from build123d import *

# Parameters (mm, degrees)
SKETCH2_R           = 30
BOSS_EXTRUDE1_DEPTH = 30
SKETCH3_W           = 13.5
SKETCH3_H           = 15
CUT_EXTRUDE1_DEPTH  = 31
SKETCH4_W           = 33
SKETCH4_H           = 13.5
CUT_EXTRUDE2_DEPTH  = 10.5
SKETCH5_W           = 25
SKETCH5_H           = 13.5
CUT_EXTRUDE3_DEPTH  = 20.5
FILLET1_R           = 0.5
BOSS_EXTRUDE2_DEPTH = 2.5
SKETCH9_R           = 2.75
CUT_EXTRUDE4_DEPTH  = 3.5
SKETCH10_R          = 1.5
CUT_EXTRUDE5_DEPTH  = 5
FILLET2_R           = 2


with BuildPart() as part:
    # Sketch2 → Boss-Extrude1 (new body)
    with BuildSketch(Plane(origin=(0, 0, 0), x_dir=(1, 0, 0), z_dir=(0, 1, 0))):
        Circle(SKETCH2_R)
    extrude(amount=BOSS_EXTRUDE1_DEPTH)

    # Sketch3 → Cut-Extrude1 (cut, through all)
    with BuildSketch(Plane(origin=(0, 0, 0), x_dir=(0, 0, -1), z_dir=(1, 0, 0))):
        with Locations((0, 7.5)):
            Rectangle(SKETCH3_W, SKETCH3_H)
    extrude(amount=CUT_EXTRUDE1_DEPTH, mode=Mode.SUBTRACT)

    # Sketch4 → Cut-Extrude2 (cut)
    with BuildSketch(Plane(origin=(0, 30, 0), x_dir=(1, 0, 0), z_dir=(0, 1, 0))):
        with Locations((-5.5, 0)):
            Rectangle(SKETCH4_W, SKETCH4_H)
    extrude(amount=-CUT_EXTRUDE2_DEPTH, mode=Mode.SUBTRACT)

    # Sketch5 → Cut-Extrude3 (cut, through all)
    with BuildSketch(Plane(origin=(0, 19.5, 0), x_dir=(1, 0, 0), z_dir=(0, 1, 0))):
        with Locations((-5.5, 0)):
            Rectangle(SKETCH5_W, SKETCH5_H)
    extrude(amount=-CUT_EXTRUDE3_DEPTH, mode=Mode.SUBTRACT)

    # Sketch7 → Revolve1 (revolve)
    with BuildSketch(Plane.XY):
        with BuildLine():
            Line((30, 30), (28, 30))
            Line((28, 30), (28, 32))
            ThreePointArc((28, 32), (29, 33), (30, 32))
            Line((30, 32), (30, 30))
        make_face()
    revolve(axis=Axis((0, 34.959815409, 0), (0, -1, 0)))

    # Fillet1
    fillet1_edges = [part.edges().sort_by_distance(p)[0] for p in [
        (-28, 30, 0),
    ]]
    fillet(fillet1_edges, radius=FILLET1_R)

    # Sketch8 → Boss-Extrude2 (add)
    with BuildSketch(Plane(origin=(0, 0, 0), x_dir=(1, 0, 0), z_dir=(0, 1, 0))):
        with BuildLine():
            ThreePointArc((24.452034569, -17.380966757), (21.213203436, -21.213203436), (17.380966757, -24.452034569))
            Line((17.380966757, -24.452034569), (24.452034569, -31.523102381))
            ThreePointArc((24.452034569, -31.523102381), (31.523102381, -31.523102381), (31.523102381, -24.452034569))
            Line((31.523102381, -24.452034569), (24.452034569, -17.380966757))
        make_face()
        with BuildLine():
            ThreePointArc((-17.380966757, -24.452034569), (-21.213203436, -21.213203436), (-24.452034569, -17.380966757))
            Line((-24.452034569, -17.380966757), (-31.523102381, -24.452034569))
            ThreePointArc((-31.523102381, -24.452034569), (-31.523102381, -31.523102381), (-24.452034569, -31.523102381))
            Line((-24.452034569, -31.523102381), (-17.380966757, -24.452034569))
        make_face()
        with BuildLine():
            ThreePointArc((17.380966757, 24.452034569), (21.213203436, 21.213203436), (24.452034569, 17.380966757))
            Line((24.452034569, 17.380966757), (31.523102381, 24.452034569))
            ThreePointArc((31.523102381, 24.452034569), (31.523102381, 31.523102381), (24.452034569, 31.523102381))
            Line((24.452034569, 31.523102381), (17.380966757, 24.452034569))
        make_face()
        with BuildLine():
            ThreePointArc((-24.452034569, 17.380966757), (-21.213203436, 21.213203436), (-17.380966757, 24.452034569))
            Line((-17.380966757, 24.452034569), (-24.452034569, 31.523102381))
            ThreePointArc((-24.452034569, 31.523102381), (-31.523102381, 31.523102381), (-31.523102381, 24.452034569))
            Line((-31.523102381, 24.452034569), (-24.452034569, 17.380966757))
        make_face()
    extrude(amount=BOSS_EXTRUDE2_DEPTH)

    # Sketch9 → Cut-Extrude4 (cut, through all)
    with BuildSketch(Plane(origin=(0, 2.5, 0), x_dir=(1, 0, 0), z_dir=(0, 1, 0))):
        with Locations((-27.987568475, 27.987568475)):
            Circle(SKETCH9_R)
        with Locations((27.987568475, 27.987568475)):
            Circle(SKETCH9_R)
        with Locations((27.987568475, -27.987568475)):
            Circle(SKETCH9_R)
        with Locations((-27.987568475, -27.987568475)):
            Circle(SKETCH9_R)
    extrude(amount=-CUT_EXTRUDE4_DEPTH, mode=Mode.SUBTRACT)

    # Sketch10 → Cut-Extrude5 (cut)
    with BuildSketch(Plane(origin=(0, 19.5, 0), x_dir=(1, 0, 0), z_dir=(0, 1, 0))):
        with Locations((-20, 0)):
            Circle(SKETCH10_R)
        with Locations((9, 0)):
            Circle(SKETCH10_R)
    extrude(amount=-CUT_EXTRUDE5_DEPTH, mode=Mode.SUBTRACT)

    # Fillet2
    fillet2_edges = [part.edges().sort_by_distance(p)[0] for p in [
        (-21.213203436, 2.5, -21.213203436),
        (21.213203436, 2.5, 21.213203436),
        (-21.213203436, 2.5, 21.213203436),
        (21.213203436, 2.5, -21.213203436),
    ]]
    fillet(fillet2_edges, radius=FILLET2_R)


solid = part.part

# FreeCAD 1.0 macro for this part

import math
import FreeCAD as App
import Part
import Sketcher


def edges_at(feature, points):
    """Names of the edges that pass closest to the given points."""
    edges = feature.Shape.Edges
    near = lambda p: min(range(len(edges)), key=lambda i: edges[i].distToShape(Part.Vertex(*p))[0])
    return sorted({f"Edge{near(p) + 1}" for p in points})

doc = App.newDocument("Part")
params = doc.addObject("Spreadsheet::Sheet", "Params")
for row, (alias, value) in enumerate([
    ("sketch1_diameter", "60 mm"),
    ("pad1_length", "30 mm"),
    ("sketch2_width", "15 mm"),
    ("sketch2_height", "13.5 mm"),
    ("sketch3_width", "33 mm"),
    ("sketch3_height", "13.5 mm"),
    ("pocket2_length", "10.5 mm"),
    ("sketch4_width", "25 mm"),
    ("sketch4_height", "13.5 mm"),
    ("sketch5_radius", "1 mm"),
    ("revolution_angle", "360 deg"),
    ("fillet_radius", "0.5 mm"),
    ("sketch6_radius", "30 mm"),
    ("sketch6_radius2", "5 mm"),
    ("pad2_length", "2.5 mm"),
    ("sketch7_diameter", "5.5 mm"),
    ("sketch8_diameter", "3 mm"),
    ("pocket5_length", "5 mm"),
    ("fillet2_radius", "2 mm"),
], start=1):
    params.set(f"A{row}", alias)
    params.set(f"B{row}", "=" + value)
    params.setAlias(f"B{row}", alias)

body = doc.addObject("PartDesign::Body", "Body")

sketch1 = body.newObject("Sketcher::SketchObject", "Sketch")
sketch1.AttachmentSupport = (doc.getObject("XZ_Plane"), [""])
sketch1.MapMode = "FlatFace"
sketch1.addGeometry(Part.Circle(App.Vector(0, 0, 0), App.Vector(0, 0, 1), 30), False)
sketch1.addConstraint(Sketcher.Constraint("Coincident", 0, 3, -1, 1))
sketch1.addConstraint(Sketcher.Constraint("Diameter", 0, 60.0))
sketch1.setExpression("Constraints[1]", "Params.sketch1_diameter")
pad1 = body.newObject("PartDesign::Pad", "Pad")
pad1.Profile = sketch1
pad1.setExpression("Length", "Params.pad1_length")
pad1.Reversed = True

sketch2 = body.newObject("Sketcher::SketchObject", "Sketch001")
sketch2.AttachmentSupport = (doc.getObject("YZ_Plane"), [""])
sketch2.MapMode = "FlatFace"
sketch2.addGeometry(Part.LineSegment(App.Vector(15, 6.75, 0), App.Vector(0, 6.75, 0)), False)
sketch2.addGeometry(Part.LineSegment(App.Vector(0, 6.75, 0), App.Vector(0, -6.75, 0)), False)
sketch2.addGeometry(Part.LineSegment(App.Vector(0, -6.75, 0), App.Vector(15, -6.75, 0)), False)
sketch2.addGeometry(Part.LineSegment(App.Vector(15, -6.75, 0), App.Vector(15, 6.75, 0)), False)
sketch2.addConstraint(Sketcher.Constraint("Coincident", 0, 2, 1, 1))
sketch2.addConstraint(Sketcher.Constraint("Coincident", 1, 2, 2, 1))
sketch2.addConstraint(Sketcher.Constraint("Coincident", 2, 2, 3, 1))
sketch2.addConstraint(Sketcher.Constraint("Coincident", 3, 2, 0, 1))
sketch2.addConstraint(Sketcher.Constraint("Horizontal", 0))
sketch2.addConstraint(Sketcher.Constraint("Vertical", 1))
sketch2.addConstraint(Sketcher.Constraint("Horizontal", 2))
sketch2.addConstraint(Sketcher.Constraint("Vertical", 3))
sketch2.addConstraint(Sketcher.Constraint("Symmetric", 0, 2, 1, 2, -1, 1))
sketch2.addConstraint(Sketcher.Constraint("DistanceX", 0, 2, 0, 1, 15.0))
sketch2.addConstraint(Sketcher.Constraint("DistanceY", 1, 2, 1, 1, 13.5))
sketch2.setExpression("Constraints[9]", "Params.sketch2_width")
sketch2.setExpression("Constraints[10]", "Params.sketch2_height")
pocket1 = body.newObject("PartDesign::Pocket", "Pocket")
pocket1.Profile = sketch2
pocket1.Type = "ThroughAll"
pocket1.Reversed = True

sketch3 = body.newObject("Sketcher::SketchObject", "Sketch002")
sketch3.AttachmentSupport = (doc.getObject("XZ_Plane"), [""])
sketch3.MapMode = "FlatFace"
sketch3.AttachmentOffset = App.Placement(App.Vector(0, 0, -30), App.Rotation())
sketch3.addGeometry(Part.LineSegment(App.Vector(-22, -6.75, 0), App.Vector(-22, 6.75, 0)), False)
sketch3.addGeometry(Part.LineSegment(App.Vector(-22, 6.75, 0), App.Vector(11, 6.75, 0)), False)
sketch3.addGeometry(Part.LineSegment(App.Vector(11, 6.75, 0), App.Vector(11, -6.75, 0)), False)
sketch3.addGeometry(Part.LineSegment(App.Vector(11, -6.75, 0), App.Vector(-22, -6.75, 0)), False)
sketch3.addConstraint(Sketcher.Constraint("Coincident", 0, 2, 1, 1))
sketch3.addConstraint(Sketcher.Constraint("Coincident", 1, 2, 2, 1))
sketch3.addConstraint(Sketcher.Constraint("Coincident", 2, 2, 3, 1))
sketch3.addConstraint(Sketcher.Constraint("Coincident", 3, 2, 0, 1))
sketch3.addConstraint(Sketcher.Constraint("Vertical", 0))
sketch3.addConstraint(Sketcher.Constraint("Horizontal", 1))
sketch3.addConstraint(Sketcher.Constraint("Vertical", 2))
sketch3.addConstraint(Sketcher.Constraint("Horizontal", 3))
sketch3.addConstraint(Sketcher.Constraint("DistanceX", 1, 1, 1, 2, 33.0))
sketch3.addConstraint(Sketcher.Constraint("DistanceY", 0, 1, 0, 2, 13.5))
sketch3.addConstraint(Sketcher.Constraint("DistanceX", 0, 2, -1, 1, 22.0))
sketch3.addConstraint(Sketcher.Constraint("DistanceY", -1, 1, 0, 2, 6.75))
sketch3.setExpression("Constraints[8]", "Params.sketch3_width")
sketch3.setExpression("Constraints[9]", "Params.sketch3_height")
pocket2 = body.newObject("PartDesign::Pocket", "Pocket001")
pocket2.Profile = sketch3
pocket2.setExpression("Length", "Params.pocket2_length")
pocket2.Reversed = True

sketch4 = body.newObject("Sketcher::SketchObject", "Sketch003")
sketch4.AttachmentSupport = (doc.getObject("XZ_Plane"), [""])
sketch4.MapMode = "FlatFace"
sketch4.AttachmentOffset = App.Placement(App.Vector(0, 0, -19.5), App.Rotation())
sketch4.addGeometry(Part.LineSegment(App.Vector(-18, -6.75, 0), App.Vector(-18, 6.75, 0)), False)
sketch4.addGeometry(Part.LineSegment(App.Vector(-18, 6.75, 0), App.Vector(7, 6.75, 0)), False)
sketch4.addGeometry(Part.LineSegment(App.Vector(7, 6.75, 0), App.Vector(7, -6.75, 0)), False)
sketch4.addGeometry(Part.LineSegment(App.Vector(7, -6.75, 0), App.Vector(-18, -6.75, 0)), False)
sketch4.addConstraint(Sketcher.Constraint("Coincident", 0, 2, 1, 1))
sketch4.addConstraint(Sketcher.Constraint("Coincident", 1, 2, 2, 1))
sketch4.addConstraint(Sketcher.Constraint("Coincident", 2, 2, 3, 1))
sketch4.addConstraint(Sketcher.Constraint("Coincident", 3, 2, 0, 1))
sketch4.addConstraint(Sketcher.Constraint("Vertical", 0))
sketch4.addConstraint(Sketcher.Constraint("Horizontal", 1))
sketch4.addConstraint(Sketcher.Constraint("Vertical", 2))
sketch4.addConstraint(Sketcher.Constraint("Horizontal", 3))
sketch4.addConstraint(Sketcher.Constraint("DistanceX", 1, 1, 1, 2, 25.0))
sketch4.addConstraint(Sketcher.Constraint("DistanceY", 0, 1, 0, 2, 13.5))
sketch4.addConstraint(Sketcher.Constraint("DistanceX", 0, 2, -1, 1, 18.0))
sketch4.addConstraint(Sketcher.Constraint("DistanceY", -1, 1, 0, 2, 6.75))
sketch4.setExpression("Constraints[8]", "Params.sketch4_width")
sketch4.setExpression("Constraints[9]", "Params.sketch4_height")
pocket3 = body.newObject("PartDesign::Pocket", "Pocket002")
pocket3.Profile = sketch4
pocket3.Type = "ThroughAll"
pocket3.Reversed = True

sketch5 = body.newObject("Sketcher::SketchObject", "Sketch004")
sketch5.AttachmentSupport = (doc.getObject("XY_Plane"), [""])
sketch5.MapMode = "FlatFace"
sketch5.addGeometry(Part.LineSegment(App.Vector(28, 30, 0), App.Vector(30, 30, 0)), False)
sketch5.addGeometry(Part.LineSegment(App.Vector(30, 30, 0), App.Vector(30, 32, 0)), False)
sketch5.addGeometry(Part.ArcOfCircle(Part.Circle(App.Vector(29, 32, 0), App.Vector(0, 0, 1), 1), math.radians(0), math.radians(180)), False)
sketch5.addGeometry(Part.LineSegment(App.Vector(28, 32, 0), App.Vector(28, 30, 0)), False)
sketch5.addConstraint(Sketcher.Constraint("Coincident", 0, 2, 1, 1))
sketch5.addConstraint(Sketcher.Constraint("Tangent", 1, 2, 2, 1))
sketch5.addConstraint(Sketcher.Constraint("Tangent", 2, 2, 3, 1))
sketch5.addConstraint(Sketcher.Constraint("Coincident", 3, 2, 0, 1))
sketch5.addConstraint(Sketcher.Constraint("Horizontal", 0))
sketch5.addConstraint(Sketcher.Constraint("Vertical", 1))
sketch5.addConstraint(Sketcher.Constraint("Vertical", 3))
sketch5.addConstraint(Sketcher.Constraint("Equal", 0, 1))
sketch5.addConstraint(Sketcher.Constraint("Radius", 2, 1.0))
sketch5.addConstraint(Sketcher.Constraint("DistanceX", -1, 1, 2, 3, 29.0))
sketch5.addConstraint(Sketcher.Constraint("DistanceY", -1, 1, 2, 3, 32.0))
sketch5.setExpression("Constraints[8]", "Params.sketch5_radius")
revolution = body.newObject("PartDesign::Revolution", "Revolution")
revolution.Profile = sketch5
revolution.ReferenceAxis = (sketch5, ["V_Axis"])
revolution.setExpression("Angle", "Params.revolution_angle")
doc.recompute()

fillet = body.newObject("PartDesign::Fillet", "Fillet")
fillet.Base = (revolution, edges_at(revolution, [(-28, 30, 0)]))
fillet.setExpression("Radius", "Params.fillet_radius")

sketch6 = body.newObject("Sketcher::SketchObject", "Sketch005")
sketch6.AttachmentSupport = (doc.getObject("XZ_Plane"), [""])
sketch6.MapMode = "FlatFace"
sketch6.addGeometry(Part.ArcOfCircle(Part.Circle(App.Vector(0, 0, 0), App.Vector(0, 0, 1), 30), math.radians(35.405932), math.radians(54.594068)), False)
sketch6.addGeometry(Part.LineSegment(App.Vector(17.380967, 24.452035, 0), App.Vector(24.452035, 31.523102, 0)), False)
sketch6.addGeometry(Part.ArcOfCircle(Part.Circle(App.Vector(27.987568, 27.987568, 0), App.Vector(0, 0, 1), 5), math.radians(-45), math.radians(135)), False)
sketch6.addGeometry(Part.LineSegment(App.Vector(31.523102, 24.452035, 0), App.Vector(24.452035, 17.380967, 0)), False)
sketch6.addGeometry(Part.ArcOfCircle(Part.Circle(App.Vector(0, 0, 0), App.Vector(0, 0, 1), 30), math.radians(125.405932), math.radians(144.594068)), False)
sketch6.addGeometry(Part.LineSegment(App.Vector(-24.452035, 17.380967, 0), App.Vector(-31.523102, 24.452035, 0)), False)
sketch6.addGeometry(Part.ArcOfCircle(Part.Circle(App.Vector(-27.987568, 27.987568, 0), App.Vector(0, 0, 1), 5), math.radians(45), math.radians(225)), False)
sketch6.addGeometry(Part.LineSegment(App.Vector(-24.452035, 31.523102, 0), App.Vector(-17.380967, 24.452035, 0)), False)
sketch6.addGeometry(Part.ArcOfCircle(Part.Circle(App.Vector(0, 0, 0), App.Vector(0, 0, 1), 30), math.radians(-54.594068), math.radians(-35.405932)), False)
sketch6.addGeometry(Part.LineSegment(App.Vector(24.452035, -17.380967, 0), App.Vector(31.523102, -24.452035, 0)), False)
sketch6.addGeometry(Part.ArcOfCircle(Part.Circle(App.Vector(27.987568, -27.987568, 0), App.Vector(0, 0, 1), 5), math.radians(-135), math.radians(45)), False)
sketch6.addGeometry(Part.LineSegment(App.Vector(24.452035, -31.523102, 0), App.Vector(17.380967, -24.452035, 0)), False)
sketch6.addGeometry(Part.ArcOfCircle(Part.Circle(App.Vector(0, 0, 0), App.Vector(0, 0, 1), 30), math.radians(-144.594068), math.radians(-125.405932)), False)
sketch6.addGeometry(Part.LineSegment(App.Vector(-17.380967, -24.452035, 0), App.Vector(-24.452035, -31.523102, 0)), False)
sketch6.addGeometry(Part.ArcOfCircle(Part.Circle(App.Vector(-27.987568, -27.987568, 0), App.Vector(0, 0, 1), 5), math.radians(135), math.radians(315)), False)
sketch6.addGeometry(Part.LineSegment(App.Vector(-31.523102, -24.452035, 0), App.Vector(-24.452035, -17.380967, 0)), False)
sketch6.addConstraint(Sketcher.Constraint("Coincident", 0, 2, 1, 1))
sketch6.addConstraint(Sketcher.Constraint("Tangent", 1, 2, 2, 2))
sketch6.addConstraint(Sketcher.Constraint("Tangent", 2, 1, 3, 1))
sketch6.addConstraint(Sketcher.Constraint("Coincident", 3, 2, 0, 1))
sketch6.addConstraint(Sketcher.Constraint("Coincident", 4, 2, 5, 1))
sketch6.addConstraint(Sketcher.Constraint("Tangent", 5, 2, 6, 2))
sketch6.addConstraint(Sketcher.Constraint("Tangent", 6, 1, 7, 1))
sketch6.addConstraint(Sketcher.Constraint("Coincident", 7, 2, 4, 1))
sketch6.addConstraint(Sketcher.Constraint("Coincident", 8, 2, 9, 1))
sketch6.addConstraint(Sketcher.Constraint("Tangent", 9, 2, 10, 2))
sketch6.addConstraint(Sketcher.Constraint("Tangent", 10, 1, 11, 1))
sketch6.addConstraint(Sketcher.Constraint("Coincident", 11, 2, 8, 1))
sketch6.addConstraint(Sketcher.Constraint("Coincident", 12, 2, 13, 1))
sketch6.addConstraint(Sketcher.Constraint("Tangent", 13, 2, 14, 2))
sketch6.addConstraint(Sketcher.Constraint("Tangent", 14, 1, 15, 1))
sketch6.addConstraint(Sketcher.Constraint("Coincident", 15, 2, 12, 1))
sketch6.addConstraint(Sketcher.Constraint("Coincident", 0, 3, -1, 1))
sketch6.addConstraint(Sketcher.Constraint("Coincident", 4, 3, -1, 1))
sketch6.addConstraint(Sketcher.Constraint("Coincident", 8, 3, -1, 1))
sketch6.addConstraint(Sketcher.Constraint("Coincident", 12, 3, -1, 1))
sketch6.addConstraint(Sketcher.Constraint("Equal", 0, 4))
sketch6.addConstraint(Sketcher.Constraint("Equal", 2, 6))
sketch6.addConstraint(Sketcher.Constraint("Equal", 4, 8))
sketch6.addConstraint(Sketcher.Constraint("Equal", 6, 10))
sketch6.addConstraint(Sketcher.Constraint("Equal", 8, 12))
sketch6.addConstraint(Sketcher.Constraint("Equal", 10, 14))
sketch6.addConstraint(Sketcher.Constraint("Symmetric", 6, 3, 10, 3, -1, 1))
sketch6.addConstraint(Sketcher.Constraint("Symmetric", 2, 3, 14, 3, -1, 1))
sketch6.addConstraint(Sketcher.Constraint("Symmetric", 2, 3, 6, 3, -2))
sketch6.addConstraint(Sketcher.Constraint("Parallel", 1, 3))
sketch6.addConstraint(Sketcher.Constraint("Perpendicular", 3, 5))
sketch6.addConstraint(Sketcher.Constraint("Parallel", 5, 7))
sketch6.addConstraint(Sketcher.Constraint("Parallel", 7, 9))
sketch6.addConstraint(Sketcher.Constraint("Parallel", 9, 11))
sketch6.addConstraint(Sketcher.Constraint("Perpendicular", 11, 13))
sketch6.addConstraint(Sketcher.Constraint("Parallel", 13, 15))
sketch6.addConstraint(Sketcher.Constraint("Horizontal", 0, 2, 2, 1))
sketch6.addConstraint(Sketcher.Constraint("Horizontal", 3, 2, 4, 2))
sketch6.addConstraint(Sketcher.Constraint("Vertical", 1, 2, 3, 2))
sketch6.addConstraint(Sketcher.Constraint("Radius", 0, 30.0))
sketch6.addConstraint(Sketcher.Constraint("Radius", 2, 5.0))
sketch6.setExpression("Constraints[39]", "Params.sketch6_radius")
sketch6.setExpression("Constraints[40]", "Params.sketch6_radius2")
pad2 = body.newObject("PartDesign::Pad", "Pad001")
pad2.Profile = sketch6
pad2.setExpression("Length", "Params.pad2_length")
pad2.Reversed = True

sketch7 = body.newObject("Sketcher::SketchObject", "Sketch006")
sketch7.AttachmentSupport = (doc.getObject("XZ_Plane"), [""])
sketch7.MapMode = "FlatFace"
sketch7.AttachmentOffset = App.Placement(App.Vector(0, 0, -2.5), App.Rotation())
sketch7.addGeometry(Part.Circle(App.Vector(-27.987568, -27.987568, 0), App.Vector(0, 0, 1), 2.75), False)
sketch7.addGeometry(Part.Circle(App.Vector(27.987568, -27.987568, 0), App.Vector(0, 0, 1), 2.75), False)
sketch7.addGeometry(Part.Circle(App.Vector(27.987568, 27.987568, 0), App.Vector(0, 0, 1), 2.75), False)
sketch7.addGeometry(Part.Circle(App.Vector(-27.987568, 27.987568, 0), App.Vector(0, 0, 1), 2.75), False)
sketch7.addConstraint(Sketcher.Constraint("Equal", 0, 1))
sketch7.addConstraint(Sketcher.Constraint("Equal", 1, 2))
sketch7.addConstraint(Sketcher.Constraint("Equal", 2, 3))
sketch7.addConstraint(Sketcher.Constraint("Symmetric", 0, 3, 2, 3, -1, 1))
sketch7.addConstraint(Sketcher.Constraint("Symmetric", 1, 3, 3, 3, -1, 1))
sketch7.addConstraint(Sketcher.Constraint("Symmetric", 0, 3, 1, 3, -2))
sketch7.addConstraint(Sketcher.Constraint("Diameter", 0, 5.5))
sketch7.addConstraint(Sketcher.Constraint("DistanceX", 0, 3, -1, 1, 27.987568))
sketch7.addConstraint(Sketcher.Constraint("DistanceY", 0, 3, -1, 1, 27.987568))
sketch7.setExpression("Constraints[6]", "Params.sketch7_diameter")
pocket4 = body.newObject("PartDesign::Pocket", "Pocket003")
pocket4.Profile = sketch7
pocket4.Type = "ThroughAll"
pocket4.Reversed = True

sketch8 = body.newObject("Sketcher::SketchObject", "Sketch007")
sketch8.AttachmentSupport = (doc.getObject("XZ_Plane"), [""])
sketch8.MapMode = "FlatFace"
sketch8.AttachmentOffset = App.Placement(App.Vector(0, 0, -19.5), App.Rotation())
sketch8.addGeometry(Part.Circle(App.Vector(-20, 0, 0), App.Vector(0, 0, 1), 1.5), False)
sketch8.addGeometry(Part.Circle(App.Vector(9, 0, 0), App.Vector(0, 0, 1), 1.5), False)
sketch8.addConstraint(Sketcher.Constraint("Equal", 0, 1))
sketch8.addConstraint(Sketcher.Constraint("PointOnObject", 0, 3, -1))
sketch8.addConstraint(Sketcher.Constraint("PointOnObject", 1, 3, -1))
sketch8.addConstraint(Sketcher.Constraint("Diameter", 0, 3.0))
sketch8.addConstraint(Sketcher.Constraint("DistanceX", 0, 3, -1, 1, 20.0))
sketch8.addConstraint(Sketcher.Constraint("DistanceX", -1, 1, 1, 3, 9.0))
sketch8.setExpression("Constraints[3]", "Params.sketch8_diameter")
pocket5 = body.newObject("PartDesign::Pocket", "Pocket004")
pocket5.Profile = sketch8
pocket5.setExpression("Length", "Params.pocket5_length")
pocket5.Reversed = True
doc.recompute()

fillet2 = body.newObject("PartDesign::Fillet", "Fillet001")
fillet2.Base = (pocket5, edges_at(pocket5, [
    (-21.213, 2.5, -21.213),
    (21.213, 2.5, 21.213),
    (-21.213, 2.5, 21.213),
    (21.213, 2.5, -21.213),
]))
fillet2.setExpression("Radius", "Params.fillet2_radius")

doc.recompute()
